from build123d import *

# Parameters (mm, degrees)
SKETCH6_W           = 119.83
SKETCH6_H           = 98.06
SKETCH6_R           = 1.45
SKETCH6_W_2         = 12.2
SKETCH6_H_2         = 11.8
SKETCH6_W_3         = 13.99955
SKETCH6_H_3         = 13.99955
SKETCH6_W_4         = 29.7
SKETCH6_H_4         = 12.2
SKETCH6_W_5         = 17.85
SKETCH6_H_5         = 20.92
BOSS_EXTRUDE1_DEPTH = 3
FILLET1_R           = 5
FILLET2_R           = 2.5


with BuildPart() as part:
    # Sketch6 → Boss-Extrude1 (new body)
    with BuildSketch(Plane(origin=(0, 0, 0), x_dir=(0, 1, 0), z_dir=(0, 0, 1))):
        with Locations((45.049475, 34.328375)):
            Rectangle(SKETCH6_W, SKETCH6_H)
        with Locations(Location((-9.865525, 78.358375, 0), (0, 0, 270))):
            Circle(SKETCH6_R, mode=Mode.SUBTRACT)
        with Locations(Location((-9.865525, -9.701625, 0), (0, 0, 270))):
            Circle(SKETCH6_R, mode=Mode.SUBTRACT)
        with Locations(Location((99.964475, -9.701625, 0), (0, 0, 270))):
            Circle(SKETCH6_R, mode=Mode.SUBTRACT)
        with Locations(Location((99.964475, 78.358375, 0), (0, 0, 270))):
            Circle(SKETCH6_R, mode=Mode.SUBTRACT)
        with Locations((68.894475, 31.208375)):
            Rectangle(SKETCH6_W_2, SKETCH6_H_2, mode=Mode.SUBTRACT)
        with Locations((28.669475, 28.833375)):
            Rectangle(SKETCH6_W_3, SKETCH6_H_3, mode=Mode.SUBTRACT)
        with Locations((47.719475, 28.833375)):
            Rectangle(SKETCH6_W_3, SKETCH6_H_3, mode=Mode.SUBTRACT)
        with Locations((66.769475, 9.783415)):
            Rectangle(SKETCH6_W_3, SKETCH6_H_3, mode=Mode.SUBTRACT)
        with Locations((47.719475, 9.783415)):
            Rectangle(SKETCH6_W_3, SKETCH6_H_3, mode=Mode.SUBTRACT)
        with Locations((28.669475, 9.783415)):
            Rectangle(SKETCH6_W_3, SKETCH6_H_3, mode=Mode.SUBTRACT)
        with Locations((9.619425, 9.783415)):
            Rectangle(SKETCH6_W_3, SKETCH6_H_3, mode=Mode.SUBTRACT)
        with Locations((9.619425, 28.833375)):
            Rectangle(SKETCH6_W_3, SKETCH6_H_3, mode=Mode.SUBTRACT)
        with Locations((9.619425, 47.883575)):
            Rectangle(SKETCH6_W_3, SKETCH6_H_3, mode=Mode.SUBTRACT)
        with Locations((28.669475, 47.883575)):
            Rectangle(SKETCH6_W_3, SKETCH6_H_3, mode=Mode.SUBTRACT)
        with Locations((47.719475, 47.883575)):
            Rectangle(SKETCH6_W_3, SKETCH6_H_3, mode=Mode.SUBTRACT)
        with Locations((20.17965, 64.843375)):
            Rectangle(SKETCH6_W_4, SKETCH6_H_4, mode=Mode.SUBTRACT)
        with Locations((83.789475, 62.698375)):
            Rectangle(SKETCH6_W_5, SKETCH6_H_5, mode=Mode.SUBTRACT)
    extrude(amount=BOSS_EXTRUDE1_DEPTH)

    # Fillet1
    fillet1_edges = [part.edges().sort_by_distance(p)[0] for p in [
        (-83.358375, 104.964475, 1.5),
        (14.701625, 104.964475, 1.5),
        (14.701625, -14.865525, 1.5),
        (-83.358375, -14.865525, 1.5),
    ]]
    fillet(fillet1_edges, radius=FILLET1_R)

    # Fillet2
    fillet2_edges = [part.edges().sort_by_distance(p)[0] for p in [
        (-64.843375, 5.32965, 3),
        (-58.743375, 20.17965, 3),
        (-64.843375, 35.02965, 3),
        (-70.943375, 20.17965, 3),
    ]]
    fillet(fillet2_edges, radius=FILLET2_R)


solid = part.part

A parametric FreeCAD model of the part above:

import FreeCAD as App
import Part
import Sketcher

V = App.Vector


def edges_at(feature, points):
    """Names of the edges that pass closest to the given points."""
    edges = feature.Shape.Edges
    near = lambda p: min(range(len(edges)), key=lambda i: edges[i].distToShape(Part.Vertex(*p))[0])
    return sorted({f"Edge{near(p) + 1}" for p in points})

doc = App.newDocument("Part")
body = doc.addObject("PartDesign::Body", "Body")

# Sketch on XY plane
sketch1 = doc.addObject("Sketcher::SketchObject", "Sketch")
body.addObject(sketch1)
sketch1.AttachmentSupport = (doc.XY_Plane, [""])
sketch1.MapMode = "FlatFace"
sketch1.addGeometry([
    Part.LineSegment(V(-83.4, -14.9, 0), V(14.7, -14.9, 0)),  # 0
    Part.LineSegment(V(14.7, -14.9, 0), V(14.7, 105, 0)),  # 1
    Part.LineSegment(V(14.7, 105, 0), V(-83.4, 105, 0)),  # 2
    Part.LineSegment(V(-83.4, 105, 0), V(-83.4, -14.9, 0)),  # 3
    Part.Circle(V(9.7, -9.9, 0), V(0, 0, 1), 1.4),  # 4
    Part.LineSegment(V(-2.8, 16.6, 0), V(-2.8, 2.6, 0)),  # 5
    Part.LineSegment(V(-2.8, 2.6, 0), V(-16.8, 2.6, 0)),  # 6
    Part.LineSegment(V(-16.8, 2.6, 0), V(-16.8, 16.6, 0)),  # 7
    Part.LineSegment(V(-16.8, 16.6, 0), V(-2.8, 16.6, 0)),  # 8
    Part.LineSegment(V(-2.8, 35.7, 0), V(-2.8, 21.7, 0)),  # 9
    Part.LineSegment(V(-2.8, 21.7, 0), V(-16.8, 21.7, 0)),  # 10
    Part.LineSegment(V(-16.8, 21.7, 0), V(-16.8, 35.7, 0)),  # 11
    Part.LineSegment(V(-16.8, 35.7, 0), V(-2.8, 35.7, 0)),  # 12
    Part.LineSegment(V(-21.8, 16.6, 0), V(-21.8, 2.6, 0)),  # 13
    Part.LineSegment(V(-21.8, 2.6, 0), V(-35.8, 2.6, 0)),  # 14
    Part.LineSegment(V(-35.8, 2.6, 0), V(-35.8, 16.6, 0)),  # 15
    Part.LineSegment(V(-35.8, 16.6, 0), V(-21.8, 16.6, 0)),  # 16
    Part.LineSegment(V(-21.8, 35.7, 0), V(-21.8, 21.7, 0)),  # 17
    Part.LineSegment(V(-21.8, 21.7, 0), V(-35.8, 21.7, 0)),  # 18
    Part.LineSegment(V(-35.8, 21.7, 0), V(-35.8, 35.7, 0)),  # 19
    Part.LineSegment(V(-35.8, 35.7, 0), V(-21.8, 35.7, 0)),  # 20
    Part.LineSegment(V(-2.8, 54.7, 0), V(-2.8, 40.7, 0)),  # 21
    Part.LineSegment(V(-2.8, 40.7, 0), V(-16.8, 40.7, 0)),  # 22
    Part.LineSegment(V(-16.8, 40.7, 0), V(-16.8, 54.7, 0)),  # 23
    Part.LineSegment(V(-16.8, 54.7, 0), V(-2.8, 54.7, 0)),  # 24
    Part.LineSegment(V(-2.8, 73.8, 0), V(-2.8, 59.8, 0)),  # 25
    Part.LineSegment(V(-2.8, 59.8, 0), V(-16.8, 59.8, 0)),  # 26
    Part.LineSegment(V(-16.8, 59.8, 0), V(-16.8, 73.8, 0)),  # 27
    Part.LineSegment(V(-16.8, 73.8, 0), V(-2.8, 73.8, 0)),  # 28
    Part.Circle(V(9.7, 100, 0), V(0, 0, 1), 1.4),  # 29
    Part.LineSegment(V(-21.8, 54.7, 0), V(-21.8, 40.7, 0)),  # 30
    Part.LineSegment(V(-21.8, 40.7, 0), V(-35.8, 40.7, 0)),  # 31
    Part.LineSegment(V(-35.8, 40.7, 0), V(-35.8, 54.7, 0)),  # 32
    Part.LineSegment(V(-35.8, 54.7, 0), V(-21.8, 54.7, 0)),  # 33
    Part.LineSegment(V(-25.3, 75, 0), V(-25.3, 62.8, 0)),  # 34
    Part.LineSegment(V(-25.3, 62.8, 0), V(-37.1, 62.8, 0)),  # 35
    Part.LineSegment(V(-37.1, 62.8, 0), V(-37.1, 75, 0)),  # 36
    Part.LineSegment(V(-37.1, 75, 0), V(-25.3, 75, 0)),  # 37
    Part.LineSegment(V(-40.9, 16.6, 0), V(-40.9, 2.6, 0)),  # 38
    Part.LineSegment(V(-40.9, 2.6, 0), V(-54.9, 2.6, 0)),  # 39
    Part.LineSegment(V(-54.9, 2.6, 0), V(-54.9, 16.6, 0)),  # 40
    Part.LineSegment(V(-54.9, 16.6, 0), V(-40.9, 16.6, 0)),  # 41
    Part.LineSegment(V(-40.9, 35.7, 0), V(-40.9, 21.7, 0)),  # 42
    Part.LineSegment(V(-40.9, 21.7, 0), V(-54.9, 21.7, 0)),  # 43
    Part.LineSegment(V(-54.9, 21.7, 0), V(-54.9, 35.7, 0)),  # 44
    Part.LineSegment(V(-54.9, 35.7, 0), V(-40.9, 35.7, 0)),  # 45
    Part.Circle(V(-78.4, -9.9, 0), V(0, 0, 1), 1.4),  # 46
    Part.LineSegment(V(-58.7, 35, 0), V(-58.7, 5.3, 0)),  # 47
    Part.LineSegment(V(-58.7, 5.3, 0), V(-70.9, 5.3, 0)),  # 48
    Part.LineSegment(V(-70.9, 5.3, 0), V(-70.9, 35, 0)),  # 49
    Part.LineSegment(V(-70.9, 35, 0), V(-58.7, 35, 0)),  # 50
    Part.LineSegment(V(-40.9, 54.7, 0), V(-40.9, 40.7, 0)),  # 51
    Part.LineSegment(V(-40.9, 40.7, 0), V(-54.9, 40.7, 0)),  # 52
    Part.LineSegment(V(-54.9, 40.7, 0), V(-54.9, 54.7, 0)),  # 53
    Part.LineSegment(V(-54.9, 54.7, 0), V(-40.9, 54.7, 0)),  # 54
    Part.LineSegment(V(-52.2, 92.7, 0), V(-52.2, 74.9, 0)),  # 55
    Part.LineSegment(V(-52.2, 74.9, 0), V(-73.2, 74.9, 0)),  # 56
    Part.LineSegment(V(-73.2, 74.9, 0), V(-73.2, 92.7, 0)),  # 57
    Part.LineSegment(V(-73.2, 92.7, 0), V(-52.2, 92.7, 0)),  # 58
    Part.Circle(V(-78.4, 100, 0), V(0, 0, 1), 1.4),  # 59
], False)
sketch1.addConstraint([
    Sketcher.Constraint("Coincident", 0, 2, 1, 1),
    Sketcher.Constraint("Coincident", 1, 2, 2, 1),
    Sketcher.Constraint("Coincident", 2, 2, 3, 1),
    Sketcher.Constraint("Coincident", 3, 2, 0, 1),
    Sketcher.Constraint("Coincident", 5, 2, 6, 1),
    Sketcher.Constraint("Coincident", 6, 2, 7, 1),
    Sketcher.Constraint("Coincident", 7, 2, 8, 1),
    Sketcher.Constraint("Coincident", 8, 2, 5, 1),
    Sketcher.Constraint("Coincident", 9, 2, 10, 1),
    Sketcher.Constraint("Coincident", 10, 2, 11, 1),
    Sketcher.Constraint("Coincident", 11, 2, 12, 1),
    Sketcher.Constraint("Coincident", 12, 2, 9, 1),
    Sketcher.Constraint("Coincident", 13, 2, 14, 1),
    Sketcher.Constraint("Coincident", 14, 2, 15, 1),
    Sketcher.Constraint("Coincident", 15, 2, 16, 1),
    Sketcher.Constraint("Coincident", 16, 2, 13, 1),
    Sketcher.Constraint("Coincident", 17, 2, 18, 1),
    Sketcher.Constraint("Coincident", 18, 2, 19, 1),
    Sketcher.Constraint("Coincident", 19, 2, 20, 1),
    Sketcher.Constraint("Coincident", 20, 2, 17, 1),
    Sketcher.Constraint("Coincident", 21, 2, 22, 1),
    Sketcher.Constraint("Coincident", 22, 2, 23, 1),
    Sketcher.Constraint("Coincident", 23, 2, 24, 1),
    Sketcher.Constraint("Coincident", 24, 2, 21, 1),
    Sketcher.Constraint("Coincident", 25, 2, 26, 1),
    Sketcher.Constraint("Coincident", 26, 2, 27, 1),
    Sketcher.Constraint("Coincident", 27, 2, 28, 1),
    Sketcher.Constraint("Coincident", 28, 2, 25, 1),
    Sketcher.Constraint("Coincident", 30, 2, 31, 1),
    Sketcher.Constraint("Coincident", 31, 2, 32, 1),
    Sketcher.Constraint("Coincident", 32, 2, 33, 1),
    Sketcher.Constraint("Coincident", 33, 2, 30, 1),
    Sketcher.Constraint("Coincident", 34, 2, 35, 1),
    Sketcher.Constraint("Coincident", 35, 2, 36, 1),
    Sketcher.Constraint("Coincident", 36, 2, 37, 1),
    Sketcher.Constraint("Coincident", 37, 2, 34, 1),
    Sketcher.Constraint("Coincident", 38, 2, 39, 1),
    Sketcher.Constraint("Coincident", 39, 2, 40, 1),
    Sketcher.Constraint("Coincident", 40, 2, 41, 1),
    Sketcher.Constraint("Coincident", 41, 2, 38, 1),
    Sketcher.Constraint("Coincident", 42, 2, 43, 1),
    Sketcher.Constraint("Coincident", 43, 2, 44, 1),
    Sketcher.Constraint("Coincident", 44, 2, 45, 1),
    Sketcher.Constraint("Coincident", 45, 2, 42, 1),
    Sketcher.Constraint("Coincident", 47, 2, 48, 1),
    Sketcher.Constraint("Coincident", 48, 2, 49, 1),
    Sketcher.Constraint("Coincident", 49, 2, 50, 1),
    Sketcher.Constraint("Coincident", 50, 2, 47, 1),
    Sketcher.Constraint("Coincident", 51, 2, 52, 1),
    Sketcher.Constraint("Coincident", 52, 2, 53, 1),
    Sketcher.Constraint("Coincident", 53, 2, 54, 1),
    Sketcher.Constraint("Coincident", 54, 2, 51, 1),
    Sketcher.Constraint("Coincident", 55, 2, 56, 1),
    Sketcher.Constraint("Coincident", 56, 2, 57, 1),
    Sketcher.Constraint("Coincident", 57, 2, 58, 1),
    Sketcher.Constraint("Coincident", 58, 2, 55, 1),
    Sketcher.Constraint("Horizontal", 0),
    Sketcher.Constraint("Vertical", 1),
    Sketcher.Constraint("Horizontal", 2),
    Sketcher.Constraint("Vertical", 3),
    Sketcher.Constraint("Vertical", 5),
    Sketcher.Constraint("Horizontal", 6),
    Sketcher.Constraint("Vertical", 7),
    Sketcher.Constraint("Horizontal", 8),
    Sketcher.Constraint("Vertical", 9),
    Sketcher.Constraint("Horizontal", 10),
    Sketcher.Constraint("Vertical", 11),
    Sketcher.Constraint("Horizontal", 12),
    Sketcher.Constraint("Vertical", 13),
    Sketcher.Constraint("Horizontal", 14),
    Sketcher.Constraint("Vertical", 15),
    Sketcher.Constraint("Horizontal", 16),
    Sketcher.Constraint("Vertical", 17),
    Sketcher.Constraint("Horizontal", 18),
    Sketcher.Constraint("Vertical", 19),
    Sketcher.Constraint("Horizontal", 20),
    Sketcher.Constraint("Vertical", 21),
    Sketcher.Constraint("Horizontal", 22),
    Sketcher.Constraint("Vertical", 23),
    Sketcher.Constraint("Horizontal", 24),
    Sketcher.Constraint("Vertical", 25),
    Sketcher.Constraint("Horizontal", 26),
    Sketcher.Constraint("Vertical", 27),
    Sketcher.Constraint("Horizontal", 28),
    Sketcher.Constraint("Vertical", 30),
    Sketcher.Constraint("Horizontal", 31),
    Sketcher.Constraint("Vertical", 32),
    Sketcher.Constraint("Horizontal", 33),
    Sketcher.Constraint("Vertical", 34),
    Sketcher.Constraint("Horizontal", 35),
    Sketcher.Constraint("Vertical", 36),
    Sketcher.Constraint("Horizontal", 37),
    Sketcher.Constraint("Vertical", 38),
    Sketcher.Constraint("Horizontal", 39),
    Sketcher.Constraint("Vertical", 40),
    Sketcher.Constraint("Horizontal", 41),
    Sketcher.Constraint("Vertical", 42),
    Sketcher.Constraint("Horizontal", 43),
    Sketcher.Constraint("Vertical", 44),
    Sketcher.Constraint("Horizontal", 45),
    Sketcher.Constraint("Vertical", 47),
    Sketcher.Constraint("Horizontal", 48),
    Sketcher.Constraint("Vertical", 49),
    Sketcher.Constraint("Horizontal", 50),
    Sketcher.Constraint("Vertical", 51),
    Sketcher.Constraint("Horizontal", 52),
    Sketcher.Constraint("Vertical", 53),
    Sketcher.Constraint("Horizontal", 54),
    Sketcher.Constraint("Vertical", 55),
    Sketcher.Constraint("Horizontal", 56),
    Sketcher.Constraint("Vertical", 57),
    Sketcher.Constraint("Horizontal", 58),
    Sketcher.Constraint("Equal", 4, 29),
    Sketcher.Constraint("Equal", 29, 46),
    Sketcher.Constraint("Equal", 46, 59),
    Sketcher.Constraint("Horizontal", 4, 3, 46, 3),
    Sketcher.Constraint("Horizontal", 29, 3, 59, 3),
    Sketcher.Constraint("Horizontal", 6, 2, 13, 2),
    Sketcher.Constraint("Horizontal", 8, 2, 15, 2),
    Sketcher.Constraint("Horizontal", 10, 2, 17, 2),
    Sketcher.Constraint("Horizontal", 12, 2, 19, 2),
    Sketcher.Constraint("Horizontal", 22, 2, 30, 2),
    Sketcher.Constraint("Horizontal", 24, 2, 32, 2),
    Sketcher.Constraint("Horizontal", 14, 2, 38, 2),
    Sketcher.Constraint("Horizontal", 16, 2, 40, 2),
    Sketcher.Constraint("Horizontal", 18, 2, 42, 2),
    Sketcher.Constraint("Horizontal", 20, 2, 44, 2),
    Sketcher.Constraint("Horizontal", 31, 2, 51, 2),
    Sketcher.Constraint("Horizontal", 33, 2, 53, 2),
    Sketcher.Constraint("Vertical", 4, 3, 29, 3),
    Sketcher.Constraint("Vertical", 46, 3, 59, 3),
    Sketcher.Constraint("Vertical", 8, 2, 9, 2),
    Sketcher.Constraint("Vertical", 7, 2, 10, 2),
    Sketcher.Constraint("Vertical", 16, 2, 17, 2),
    Sketcher.Constraint("Vertical", 15, 2, 18, 2),
    Sketcher.Constraint("Vertical", 12, 2, 21, 2),
    Sketcher.Constraint("Vertical", 11, 2, 22, 2),
    Sketcher.Constraint("Vertical", 24, 2, 25, 2),
    Sketcher.Constraint("Vertical", 23, 2, 26, 2),
    Sketcher.Constraint("Vertical", 20, 2, 30, 2),
    Sketcher.Constraint("Vertical", 19, 2, 31, 2),
    Sketcher.Constraint("Vertical", 41, 2, 42, 2),
    Sketcher.Constraint("Vertical", 40, 2, 43, 2),
    Sketcher.Constraint("Vertical", 45, 2, 51, 2),
    Sketcher.Constraint("Vertical", 44, 2, 52, 2),
    Sketcher.Constraint("Equal", 12, 14),
    Sketcher.Constraint("Equal", 33, 39),
    Sketcher.Constraint("Equal", 54, 5),
    Sketcher.Constraint("Equal", 7, 9),
    Sketcher.Constraint("Equal", 19, 21),
    Sketcher.Constraint("Equal", 23, 25),
    Sketcher.Constraint("Equal", 50, 34),
    Sketcher.Constraint("Diameter", 4, 2.9),
    Sketcher.Constraint("DistanceX", 35, 2, 35, 1, 11.8),
    Sketcher.Constraint("DistanceX", 48, 2, 48, 1, 12.2),
    Sketcher.Constraint("DistanceY", 47, 2, 47, 1, 29.7),
    Sketcher.Constraint("DistanceX", 4, 3, 0, 2, 5.0),
    Sketcher.Constraint("DistanceY", 0, 2, 4, 3, 5.0),
    Sketcher.Constraint("DistanceY", 29, 3, 1, 2, 5.0),
    Sketcher.Constraint("DistanceX", 2, 2, 59, 3, 5.0),
    Sketcher.Constraint("DistanceX", 0, 1, 0, 2, 98.06),
    Sketcher.Constraint("DistanceX", 56, 2, 56, 1, 20.92),
    Sketcher.Constraint("DistanceY", 1, 1, 1, 2, 119.83),
    Sketcher.Constraint("DistanceY", 55, 2, 55, 1, 17.85),
    Sketcher.Constraint("DistanceX", 59, 3, 56, 2, 5.2),
    Sketcher.Constraint("DistanceY", 56, 2, 59, 3, 25.1),
    Sketcher.Constraint("DistanceY", 9, 2, 21, 2, 19.05),
    Sketcher.Constraint("DistanceY", 21, 2, 25, 2, 19.05),
    Sketcher.Constraint("DistanceY", 39, 2, 47, 2, 2.71),
    Sketcher.Constraint("DistanceX", 55, 2, 36, 2, 15.13),
    Sketcher.Constraint("DistanceY", 55, 2, 36, 2, 0.13),
    Sketcher.Constraint("DistanceX", 46, 3, 48, 2, 7.415),
    Sketcher.Constraint("DistanceX", 6, 2, 6, 1, 13.99955),
    Sketcher.Constraint("DistanceY", -1, 1, 7, 2, 16.6192),
    Sketcher.Constraint("DistanceY", -1, 1, 9, 2, 21.6697),
    Sketcher.Constraint("DistanceX", 13, 2, -1, 1, 21.8336),
    Sketcher.Constraint("DistanceX", 38, 2, -1, 1, 40.8838),
    Sketcher.Constraint("DistanceX", 5, 2, -1, 1, 2.78364),
    Sketcher.Constraint("DistanceX", -1, 1, 4, 3, 9.701625),
    Sketcher.Constraint("DistanceY", 4, 3, -1, 1, 9.865525),
])
pad1 = doc.addObject("PartDesign::Pad", "Pad")
body.addObject(pad1)
pad1.Profile = sketch1
pad1.Length = 3
doc.recompute()

fillet = doc.addObject("PartDesign::Fillet", "Fillet")
body.addObject(fillet)
fillet.Base = (pad1, edges_at(pad1, [
    (-83.358, 104.964, 1.5),
    (14.702, 104.964, 1.5),
    (14.702, -14.866, 1.5),
    (-83.358, -14.866, 1.5),
]))
fillet.Radius = 5
doc.recompute()

fillet2 = doc.addObject("PartDesign::Fillet", "Fillet001")
body.addObject(fillet2)
fillet2.Base = (fillet, edges_at(fillet, [
    (-64.843, 5.33, 3),
    (-58.743, 20.18, 3),
    (-64.843, 35.03, 3),
    (-70.943, 20.18, 3),
]))
fillet2.Radius = 2.5

doc.recompute()
